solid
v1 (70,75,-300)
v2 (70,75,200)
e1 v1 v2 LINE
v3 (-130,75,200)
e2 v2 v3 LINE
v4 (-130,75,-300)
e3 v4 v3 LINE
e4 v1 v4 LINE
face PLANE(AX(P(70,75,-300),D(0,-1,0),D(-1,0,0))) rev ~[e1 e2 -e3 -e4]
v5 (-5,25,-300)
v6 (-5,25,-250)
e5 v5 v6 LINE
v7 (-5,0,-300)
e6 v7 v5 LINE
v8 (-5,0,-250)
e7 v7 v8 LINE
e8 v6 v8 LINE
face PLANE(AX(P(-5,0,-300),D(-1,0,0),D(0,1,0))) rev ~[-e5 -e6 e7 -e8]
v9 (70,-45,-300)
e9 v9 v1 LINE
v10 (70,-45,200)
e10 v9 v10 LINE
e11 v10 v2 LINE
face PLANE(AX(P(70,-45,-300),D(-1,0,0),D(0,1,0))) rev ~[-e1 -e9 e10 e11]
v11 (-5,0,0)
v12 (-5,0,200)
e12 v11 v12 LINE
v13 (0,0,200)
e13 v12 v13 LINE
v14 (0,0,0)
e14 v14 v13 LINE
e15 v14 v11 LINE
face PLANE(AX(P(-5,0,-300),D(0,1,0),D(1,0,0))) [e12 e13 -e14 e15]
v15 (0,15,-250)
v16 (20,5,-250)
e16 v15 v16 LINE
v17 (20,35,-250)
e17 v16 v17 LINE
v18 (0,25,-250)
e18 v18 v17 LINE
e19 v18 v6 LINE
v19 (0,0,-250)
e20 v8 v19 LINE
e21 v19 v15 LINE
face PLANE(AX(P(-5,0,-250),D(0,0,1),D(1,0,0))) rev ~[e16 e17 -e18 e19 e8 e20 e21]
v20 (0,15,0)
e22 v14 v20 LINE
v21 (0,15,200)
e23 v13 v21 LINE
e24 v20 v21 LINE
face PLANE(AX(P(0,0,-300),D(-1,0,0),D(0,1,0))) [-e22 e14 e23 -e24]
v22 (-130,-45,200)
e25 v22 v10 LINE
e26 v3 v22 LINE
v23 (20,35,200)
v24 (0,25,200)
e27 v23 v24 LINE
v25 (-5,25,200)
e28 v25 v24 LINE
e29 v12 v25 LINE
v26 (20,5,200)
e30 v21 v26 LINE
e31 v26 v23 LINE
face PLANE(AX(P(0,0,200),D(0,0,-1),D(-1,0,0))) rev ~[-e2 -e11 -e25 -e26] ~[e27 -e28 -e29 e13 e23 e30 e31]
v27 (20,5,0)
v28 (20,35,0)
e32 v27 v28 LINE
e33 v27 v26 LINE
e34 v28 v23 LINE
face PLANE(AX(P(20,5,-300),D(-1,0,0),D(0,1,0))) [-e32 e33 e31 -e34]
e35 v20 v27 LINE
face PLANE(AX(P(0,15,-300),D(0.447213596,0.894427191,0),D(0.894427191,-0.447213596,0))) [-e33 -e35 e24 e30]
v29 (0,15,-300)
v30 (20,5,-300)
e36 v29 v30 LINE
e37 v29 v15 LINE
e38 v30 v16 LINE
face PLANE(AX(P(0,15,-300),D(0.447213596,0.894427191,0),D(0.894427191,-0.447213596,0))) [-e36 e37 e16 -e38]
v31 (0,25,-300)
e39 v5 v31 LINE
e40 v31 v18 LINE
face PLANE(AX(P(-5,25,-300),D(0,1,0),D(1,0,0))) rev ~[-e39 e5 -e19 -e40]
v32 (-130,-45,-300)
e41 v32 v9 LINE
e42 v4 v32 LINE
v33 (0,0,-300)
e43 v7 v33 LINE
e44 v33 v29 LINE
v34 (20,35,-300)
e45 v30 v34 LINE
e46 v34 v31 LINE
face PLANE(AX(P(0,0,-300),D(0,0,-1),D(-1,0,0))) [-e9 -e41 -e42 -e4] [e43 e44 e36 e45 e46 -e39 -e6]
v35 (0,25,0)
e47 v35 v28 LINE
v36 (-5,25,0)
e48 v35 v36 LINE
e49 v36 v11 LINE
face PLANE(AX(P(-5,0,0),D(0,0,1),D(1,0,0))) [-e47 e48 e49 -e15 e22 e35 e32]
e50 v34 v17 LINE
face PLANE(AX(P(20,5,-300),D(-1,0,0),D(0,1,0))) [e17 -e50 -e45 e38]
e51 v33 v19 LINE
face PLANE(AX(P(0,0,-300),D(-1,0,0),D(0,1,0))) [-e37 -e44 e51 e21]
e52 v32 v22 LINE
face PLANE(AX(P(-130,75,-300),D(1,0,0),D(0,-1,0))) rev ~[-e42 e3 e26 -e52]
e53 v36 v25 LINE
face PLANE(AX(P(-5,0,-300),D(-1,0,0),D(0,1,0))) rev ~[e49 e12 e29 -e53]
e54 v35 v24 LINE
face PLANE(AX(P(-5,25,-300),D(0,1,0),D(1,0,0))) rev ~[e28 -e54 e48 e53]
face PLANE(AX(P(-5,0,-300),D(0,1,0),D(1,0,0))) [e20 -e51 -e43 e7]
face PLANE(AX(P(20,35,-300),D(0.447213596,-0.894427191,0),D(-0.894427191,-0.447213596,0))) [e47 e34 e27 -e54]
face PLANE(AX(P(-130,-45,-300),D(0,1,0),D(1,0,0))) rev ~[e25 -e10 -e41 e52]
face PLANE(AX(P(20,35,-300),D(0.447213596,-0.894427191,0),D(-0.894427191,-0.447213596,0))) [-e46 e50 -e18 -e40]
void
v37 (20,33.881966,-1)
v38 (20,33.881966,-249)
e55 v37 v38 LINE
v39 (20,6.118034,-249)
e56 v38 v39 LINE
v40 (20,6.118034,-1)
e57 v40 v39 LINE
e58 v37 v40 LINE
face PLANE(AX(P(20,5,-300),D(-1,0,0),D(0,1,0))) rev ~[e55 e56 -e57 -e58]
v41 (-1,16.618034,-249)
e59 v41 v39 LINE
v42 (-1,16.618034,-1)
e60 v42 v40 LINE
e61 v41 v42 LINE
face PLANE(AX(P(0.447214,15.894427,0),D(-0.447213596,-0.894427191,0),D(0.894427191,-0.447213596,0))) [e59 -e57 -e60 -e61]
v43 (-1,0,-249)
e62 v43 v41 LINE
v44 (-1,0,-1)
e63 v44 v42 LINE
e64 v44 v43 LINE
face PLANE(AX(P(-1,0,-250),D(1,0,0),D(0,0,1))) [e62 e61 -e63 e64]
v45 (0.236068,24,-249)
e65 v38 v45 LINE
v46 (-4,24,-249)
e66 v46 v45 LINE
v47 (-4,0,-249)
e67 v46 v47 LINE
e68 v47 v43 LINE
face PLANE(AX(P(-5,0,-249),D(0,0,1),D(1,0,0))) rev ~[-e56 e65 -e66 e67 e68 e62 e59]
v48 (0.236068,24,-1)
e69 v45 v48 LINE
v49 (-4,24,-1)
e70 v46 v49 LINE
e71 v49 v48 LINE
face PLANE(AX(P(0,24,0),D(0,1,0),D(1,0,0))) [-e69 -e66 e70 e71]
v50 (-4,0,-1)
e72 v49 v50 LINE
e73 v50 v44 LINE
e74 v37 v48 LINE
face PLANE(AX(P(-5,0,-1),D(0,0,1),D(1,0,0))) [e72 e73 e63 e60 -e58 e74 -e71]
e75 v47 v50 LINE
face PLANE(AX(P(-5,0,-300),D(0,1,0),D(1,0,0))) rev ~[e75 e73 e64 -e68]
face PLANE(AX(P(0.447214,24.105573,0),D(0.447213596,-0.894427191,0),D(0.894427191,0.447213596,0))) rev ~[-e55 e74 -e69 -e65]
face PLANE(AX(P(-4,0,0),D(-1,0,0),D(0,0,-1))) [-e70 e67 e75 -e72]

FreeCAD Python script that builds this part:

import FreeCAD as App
import Part
import Sketcher
from FreeCAD import Vector


def faces_at(feature, points):
    """Names of the faces that lie closest to the given points."""
    faces = feature.Shape.Faces
    near = lambda p: min(range(len(faces)), key=lambda i: faces[i].distToShape(Part.Vertex(*p))[0])
    return sorted({f"Face{near(p) + 1}" for p in points})


def add_polygon(sketch, points):
    """Adds a closed chain of lines whose ends are joined by coincident constraints."""
    first, n = sketch.GeometryCount, len(points)
    for a, b in zip(points, points[1:] + points[:1]):
        sketch.addGeometry(Part.LineSegment(App.Vector(*a, 0), App.Vector(*b, 0)), False)
    for i in range(n):
        sketch.addConstraint(Sketcher.Constraint("Coincident", first + i, 2, first + (i + 1) % n, 1))

doc = App.newDocument("Part")
body = doc.addObject("PartDesign::Body", "Body")

# Sketch on XZ plane
sketch1 = body.newObject("Sketcher::SketchObject", "Sketch")
sketch1.AttachmentSupport = (doc.getObject("XZ_Plane"), [""])
sketch1.MapMode = "FlatFace"
add_polygon(sketch1, [(-5, 0), (0, 0), (0, -250), (-5, -250)])  # lines 0-3
sketch1.addConstraint(Sketcher.Constraint("Horizontal", 0))
sketch1.addConstraint(Sketcher.Constraint("Vertical", 1))
sketch1.addConstraint(Sketcher.Constraint("Horizontal", 2))
sketch1.addConstraint(Sketcher.Constraint("Vertical", 3))
sketch1.addConstraint(Sketcher.Constraint("Coincident", 0, 2, -1, 1))
sketch1.addConstraint(Sketcher.Constraint("DistanceX", 0, 1, 0, 2, 5.0))
sketch1.addConstraint(Sketcher.Constraint("DistanceY", 1, 2, 1, 1, 250.0))
pad1 = body.newObject("PartDesign::Pad", "Pad")
pad1.Profile = sketch1
pad1.Length = 15
pad1.Reversed = True

# Sketch on XZ plane
sketch2 = body.newObject("Sketcher::SketchObject", "Sketch001")
sketch2.AttachmentSupport = (doc.getObject("XZ_Plane"), [""])
sketch2.MapMode = "FlatFace"
sketch2.AttachmentOffset = App.Placement(Vector(0, 0, -15), App.Rotation())
add_polygon(sketch2, [(0, 0), (0, -250), (-5, -250), (-5, 0)])  # lines 0-3
sketch2.addConstraint(Sketcher.Constraint("Vertical", 0))
sketch2.addConstraint(Sketcher.Constraint("Horizontal", 1))
sketch2.addConstraint(Sketcher.Constraint("Vertical", 2))
sketch2.addConstraint(Sketcher.Constraint("Horizontal", 3))
sketch2.addConstraint(Sketcher.Constraint("Coincident", 3, 2, -1, 1))
sketch2.addConstraint(Sketcher.Constraint("DistanceX", 1, 2, 1, 1, 5.0))
sketch2.addConstraint(Sketcher.Constraint("DistanceY", 0, 2, 0, 1, 250.0))
pad2 = body.newObject("PartDesign::Pad", "Pad001")
pad2.Profile = sketch2
pad2.Length = 10
pad2.Reversed = True

# Sketch on XY plane
sketch3 = body.newObject("Sketcher::SketchObject", "Sketch002")
sketch3.AttachmentSupport = (doc.getObject("XY_Plane"), [""])
sketch3.MapMode = "FlatFace"
add_polygon(sketch3, [(0, 25), (0, 15), (20, 5), (20, 35)])  # lines 0-3
sketch3.addConstraint(Sketcher.Constraint("Vertical", 0))
sketch3.addConstraint(Sketcher.Constraint("Vertical", 2))
sketch3.addConstraint(Sketcher.Constraint("PointOnObject", 0, 2, -2))
sketch3.addConstraint(Sketcher.Constraint("Equal", 1, 3))
sketch3.addConstraint(Sketcher.Constraint("DistanceY", 0, 2, 0, 1, 10.0))
sketch3.addConstraint(Sketcher.Constraint("DistanceY", 2, 1, 2, 2, 30.0))
sketch3.addConstraint(Sketcher.Constraint("DistanceX", -1, 1, 1, 2, 20.0))
sketch3.addConstraint(Sketcher.Constraint("DistanceY", -1, 1, 0, 2, 15.0))
pad3 = body.newObject("PartDesign::Pad", "Pad002")
pad3.Profile = sketch3
pad3.Length = 250
pad3.Reversed = True
doc.recompute()

thickness = body.newObject("PartDesign::Thickness", "Thickness")
thickness.Base = (pad3, faces_at(pad3, [(20, 15, -83.333), (-1.667, 0, -83.333)]))
thickness.Value = 1
thickness.Reversed = True
thickness.Join = "Intersection"

# Sketch on XY plane
sketch4 = body.newObject("Sketcher::SketchObject", "Sketch003")
sketch4.AttachmentSupport = (doc.getObject("XY_Plane"), [""])
sketch4.MapMode = "FlatFace"
sketch4.AttachmentOffset = App.Placement(Vector(0, 0, -300), App.Rotation())
add_polygon(sketch4, [(70, -45), (-130, -45), (-130, 75), (70, 75)])  # lines 0-3
add_polygon(sketch4, [(-5, 25), (-5, 0), (0, 0), (0, 15), (20, 5), (20, 35), (0, 25)])  # lines 4-10
sketch4.addConstraint(Sketcher.Constraint("Horizontal", 0))
sketch4.addConstraint(Sketcher.Constraint("Vertical", 1))
sketch4.addConstraint(Sketcher.Constraint("Horizontal", 2))
sketch4.addConstraint(Sketcher.Constraint("Vertical", 3))
sketch4.addConstraint(Sketcher.Constraint("Vertical", 4))
sketch4.addConstraint(Sketcher.Constraint("Horizontal", 5))
sketch4.addConstraint(Sketcher.Constraint("Vertical", 6))
sketch4.addConstraint(Sketcher.Constraint("Vertical", 8))
sketch4.addConstraint(Sketcher.Constraint("Horizontal", 10))
sketch4.addConstraint(Sketcher.Constraint("Coincident", 5, 2, -1, 1))
sketch4.addConstraint(Sketcher.Constraint("PointOnObject", 9, 2, -2))
sketch4.addConstraint(Sketcher.Constraint("Equal", 7, 9))
sketch4.addConstraint(Sketcher.Constraint("DistanceX", 0, 2, 0, 1, 200.0))
sketch4.addConstraint(Sketcher.Constraint("DistanceY", 1, 1, 1, 2, 120.0))
sketch4.addConstraint(Sketcher.Constraint("DistanceX", 7, 2, 3, 2, 50.0))
sketch4.addConstraint(Sketcher.Constraint("DistanceY", 3, 2, 7, 2, 50.0))
sketch4.addConstraint(Sketcher.Constraint("DistanceX", 5, 1, 5, 2, 5.0))
sketch4.addConstraint(Sketcher.Constraint("DistanceY", 4, 2, 4, 1, 25.0))
sketch4.addConstraint(Sketcher.Constraint("DistanceY", 6, 1, 6, 2, 15.0))
sketch4.addConstraint(Sketcher.Constraint("DistanceY", 8, 1, 8, 2, 30.0))
sketch4.addConstraint(Sketcher.Constraint("DistanceX", 0, 2, -1, 1, 130.0))
pad4 = body.newObject("PartDesign::Pad", "Pad003")
pad4.Profile = sketch4
pad4.Length = 500

doc.recompute()
